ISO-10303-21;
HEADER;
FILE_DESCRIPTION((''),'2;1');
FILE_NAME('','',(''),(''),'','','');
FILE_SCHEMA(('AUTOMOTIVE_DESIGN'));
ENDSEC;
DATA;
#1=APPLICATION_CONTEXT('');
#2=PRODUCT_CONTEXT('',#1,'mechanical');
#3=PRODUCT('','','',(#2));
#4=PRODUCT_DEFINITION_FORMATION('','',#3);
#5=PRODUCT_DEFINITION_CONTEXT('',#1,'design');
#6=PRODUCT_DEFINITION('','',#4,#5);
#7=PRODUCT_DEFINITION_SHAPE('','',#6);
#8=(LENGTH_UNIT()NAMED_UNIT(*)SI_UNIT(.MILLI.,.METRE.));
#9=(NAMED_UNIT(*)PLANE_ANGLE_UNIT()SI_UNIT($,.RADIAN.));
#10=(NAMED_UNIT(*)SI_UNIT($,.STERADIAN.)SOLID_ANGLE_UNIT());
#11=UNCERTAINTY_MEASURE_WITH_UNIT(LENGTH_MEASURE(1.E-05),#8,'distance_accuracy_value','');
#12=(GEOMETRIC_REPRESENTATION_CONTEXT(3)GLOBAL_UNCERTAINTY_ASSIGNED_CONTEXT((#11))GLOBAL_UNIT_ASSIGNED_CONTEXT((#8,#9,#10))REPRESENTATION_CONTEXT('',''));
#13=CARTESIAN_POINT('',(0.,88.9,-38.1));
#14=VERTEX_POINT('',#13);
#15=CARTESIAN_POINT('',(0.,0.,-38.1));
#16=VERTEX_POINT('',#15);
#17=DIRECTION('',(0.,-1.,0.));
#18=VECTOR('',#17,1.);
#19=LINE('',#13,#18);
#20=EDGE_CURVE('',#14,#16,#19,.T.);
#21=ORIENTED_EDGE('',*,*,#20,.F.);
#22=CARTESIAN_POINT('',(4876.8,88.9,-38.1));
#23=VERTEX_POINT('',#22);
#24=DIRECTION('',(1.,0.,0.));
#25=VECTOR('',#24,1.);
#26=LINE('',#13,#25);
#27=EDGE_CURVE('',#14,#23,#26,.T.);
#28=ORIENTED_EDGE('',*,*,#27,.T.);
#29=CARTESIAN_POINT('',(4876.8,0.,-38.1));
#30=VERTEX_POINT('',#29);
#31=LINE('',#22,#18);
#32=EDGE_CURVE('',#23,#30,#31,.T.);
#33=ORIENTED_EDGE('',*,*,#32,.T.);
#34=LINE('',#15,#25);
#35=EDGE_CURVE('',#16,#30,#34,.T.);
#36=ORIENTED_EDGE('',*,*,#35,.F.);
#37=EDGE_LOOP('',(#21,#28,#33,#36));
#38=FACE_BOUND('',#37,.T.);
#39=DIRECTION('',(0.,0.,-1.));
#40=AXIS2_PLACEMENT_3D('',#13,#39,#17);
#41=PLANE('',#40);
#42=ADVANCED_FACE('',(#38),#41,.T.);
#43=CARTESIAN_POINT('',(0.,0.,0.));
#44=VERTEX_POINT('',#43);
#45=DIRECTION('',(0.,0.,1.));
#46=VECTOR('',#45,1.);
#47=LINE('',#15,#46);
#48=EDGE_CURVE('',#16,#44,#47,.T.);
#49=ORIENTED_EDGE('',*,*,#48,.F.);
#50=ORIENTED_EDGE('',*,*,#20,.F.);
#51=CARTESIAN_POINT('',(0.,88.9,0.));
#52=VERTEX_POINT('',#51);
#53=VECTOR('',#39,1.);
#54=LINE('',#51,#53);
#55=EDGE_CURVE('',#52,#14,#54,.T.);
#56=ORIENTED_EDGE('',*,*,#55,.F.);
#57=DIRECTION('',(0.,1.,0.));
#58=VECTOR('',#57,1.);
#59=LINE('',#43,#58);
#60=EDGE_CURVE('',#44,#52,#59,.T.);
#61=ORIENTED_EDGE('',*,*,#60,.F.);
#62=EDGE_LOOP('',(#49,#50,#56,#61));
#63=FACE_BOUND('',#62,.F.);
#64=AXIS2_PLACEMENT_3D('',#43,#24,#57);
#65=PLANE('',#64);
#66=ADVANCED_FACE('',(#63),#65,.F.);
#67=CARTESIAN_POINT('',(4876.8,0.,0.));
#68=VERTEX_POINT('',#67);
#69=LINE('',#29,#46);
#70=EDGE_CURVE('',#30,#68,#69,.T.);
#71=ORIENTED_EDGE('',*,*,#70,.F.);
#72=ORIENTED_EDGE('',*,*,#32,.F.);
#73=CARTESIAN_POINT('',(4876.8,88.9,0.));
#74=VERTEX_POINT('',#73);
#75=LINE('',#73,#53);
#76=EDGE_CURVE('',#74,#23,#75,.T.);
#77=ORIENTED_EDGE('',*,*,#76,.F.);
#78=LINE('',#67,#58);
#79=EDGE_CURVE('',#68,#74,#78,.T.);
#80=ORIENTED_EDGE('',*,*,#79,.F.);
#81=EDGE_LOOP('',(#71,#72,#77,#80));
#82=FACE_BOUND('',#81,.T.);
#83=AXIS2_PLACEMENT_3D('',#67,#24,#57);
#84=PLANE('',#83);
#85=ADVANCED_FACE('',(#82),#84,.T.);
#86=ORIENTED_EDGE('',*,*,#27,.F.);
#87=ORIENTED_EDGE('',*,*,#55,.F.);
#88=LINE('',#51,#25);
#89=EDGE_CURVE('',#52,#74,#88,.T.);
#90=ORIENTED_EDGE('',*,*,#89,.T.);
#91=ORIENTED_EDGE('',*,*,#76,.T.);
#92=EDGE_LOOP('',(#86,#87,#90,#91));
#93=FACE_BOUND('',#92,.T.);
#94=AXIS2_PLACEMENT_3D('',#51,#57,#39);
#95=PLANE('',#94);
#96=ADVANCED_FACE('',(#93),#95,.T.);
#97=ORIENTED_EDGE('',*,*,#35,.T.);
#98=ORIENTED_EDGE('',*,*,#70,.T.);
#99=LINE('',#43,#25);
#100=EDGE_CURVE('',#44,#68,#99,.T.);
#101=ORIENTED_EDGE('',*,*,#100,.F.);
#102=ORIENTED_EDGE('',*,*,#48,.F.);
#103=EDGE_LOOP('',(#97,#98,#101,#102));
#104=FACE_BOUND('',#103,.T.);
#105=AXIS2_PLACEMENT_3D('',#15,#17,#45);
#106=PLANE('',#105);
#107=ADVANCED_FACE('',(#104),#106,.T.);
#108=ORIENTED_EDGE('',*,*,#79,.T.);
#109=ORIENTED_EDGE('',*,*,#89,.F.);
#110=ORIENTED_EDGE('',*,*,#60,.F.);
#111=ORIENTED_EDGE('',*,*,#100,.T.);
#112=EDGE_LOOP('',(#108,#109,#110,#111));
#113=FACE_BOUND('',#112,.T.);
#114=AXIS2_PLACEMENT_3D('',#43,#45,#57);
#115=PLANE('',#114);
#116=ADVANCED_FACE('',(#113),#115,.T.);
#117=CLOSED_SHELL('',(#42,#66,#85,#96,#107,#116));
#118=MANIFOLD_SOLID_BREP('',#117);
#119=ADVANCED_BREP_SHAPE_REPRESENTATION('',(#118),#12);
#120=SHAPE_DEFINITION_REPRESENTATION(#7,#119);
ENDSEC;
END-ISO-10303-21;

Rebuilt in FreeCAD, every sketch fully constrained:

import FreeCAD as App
import Part
import Sketcher

V = App.Vector
Q = App.Units.Quantity

doc = App.newDocument("Part")
body = doc.addObject("PartDesign::Body", "Body")

sketch1 = body.newObject("Sketcher::SketchObject", "Sketch")
sketch1.AttachmentSupport = (doc.getObject("YZ_Plane"), [""])
sketch1.MapMode = "FlatFace"
sketch1.addGeometry([
    Part.LineSegment(V(88.9, 0, 0), V(0, 0, 0)),
    Part.LineSegment(V(0, 0, 0), V(0, -38.1, 0)),
    Part.LineSegment(V(0, -38.1, 0), V(88.9, -38.1, 0)),
    Part.LineSegment(V(88.9, -38.1, 0), V(88.9, 0, 0)),
], False)
sketch1.addConstraint([
    Sketcher.Constraint("Coincident", 0, 2, 1, 1),
    Sketcher.Constraint("Coincident", 1, 2, 2, 1),
    Sketcher.Constraint("Coincident", 2, 2, 3, 1),
    Sketcher.Constraint("Coincident", 3, 2, 0, 1),
    Sketcher.Constraint("Horizontal", 0),
    Sketcher.Constraint("Vertical", 1),
    Sketcher.Constraint("Horizontal", 2),
    Sketcher.Constraint("Vertical", 3),
    Sketcher.Constraint("Coincident", 0, 2, -1, 1),
    Sketcher.Constraint("DistanceX", 0, 2, 0, 1, Q("3.5 in")),
    Sketcher.Constraint("DistanceY", 1, 2, 1, 1, Q("1.5 in")),
])
pad1 = body.newObject("PartDesign::Pad", "Pad")
pad1.Profile = sketch1
pad1.Length = Q("192 in")

doc.recompute()
